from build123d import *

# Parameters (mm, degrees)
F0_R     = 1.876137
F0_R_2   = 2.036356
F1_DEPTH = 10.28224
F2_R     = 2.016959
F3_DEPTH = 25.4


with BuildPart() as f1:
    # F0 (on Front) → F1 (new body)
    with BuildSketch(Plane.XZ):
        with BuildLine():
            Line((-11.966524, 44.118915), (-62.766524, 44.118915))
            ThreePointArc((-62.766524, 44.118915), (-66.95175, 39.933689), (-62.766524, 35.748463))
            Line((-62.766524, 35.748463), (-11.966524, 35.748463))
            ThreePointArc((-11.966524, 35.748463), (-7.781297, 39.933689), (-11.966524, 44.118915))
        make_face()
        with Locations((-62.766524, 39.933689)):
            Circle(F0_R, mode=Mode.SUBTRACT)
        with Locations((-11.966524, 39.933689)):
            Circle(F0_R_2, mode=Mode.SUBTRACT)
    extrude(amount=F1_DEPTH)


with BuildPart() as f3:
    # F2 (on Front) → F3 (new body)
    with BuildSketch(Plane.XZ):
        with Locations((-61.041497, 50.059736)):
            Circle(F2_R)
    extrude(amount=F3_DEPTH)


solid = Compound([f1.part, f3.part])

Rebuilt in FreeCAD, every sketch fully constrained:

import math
import FreeCAD as App
import Part
import Sketcher
Q = App.Units.Quantity

doc = App.newDocument("Part")
body = doc.addObject("PartDesign::Body", "Body")

# Sketch on XZ plane
sketch1 = body.newObject("Sketcher::SketchObject", "Sketch")
sketch1.AttachmentSupport = (doc.getObject("XZ_Plane"), [""])
sketch1.MapMode = "FlatFace"
sketch1.addGeometry(Part.LineSegment(App.Vector(-11.966524, 44.118915, 0), App.Vector(-62.766524, 44.118915, 0)), False)
sketch1.addGeometry(Part.ArcOfCircle(Part.Circle(App.Vector(-62.766524, 39.933689, 0), App.Vector(0, 0, 1), 4.185226), math.radians(90), math.radians(270)), False)
sketch1.addGeometry(Part.LineSegment(App.Vector(-62.766524, 35.748463, 0), App.Vector(-11.966524, 35.748463, 0)), False)
sketch1.addGeometry(Part.ArcOfCircle(Part.Circle(App.Vector(-11.966523, 39.933689, 0), App.Vector(0, 0, 1), 4.185226), math.radians(-90.000014), math.radians(90.000014)), False)
sketch1.addGeometry(Part.Circle(App.Vector(-62.766524, 39.933689, 0), App.Vector(0, 0, 1), 1.876137), False)
sketch1.addGeometry(Part.Circle(App.Vector(-11.966524, 39.933689, 0), App.Vector(0, 0, 1), 2.036356), False)
sketch1.addConstraint(Sketcher.Constraint("Tangent", 0, 2, 1, 1))
sketch1.addConstraint(Sketcher.Constraint("Tangent", 1, 2, 2, 1))
sketch1.addConstraint(Sketcher.Constraint("Tangent", 2, 2, 3, 1))
sketch1.addConstraint(Sketcher.Constraint("Tangent", 3, 2, 0, 1))
sketch1.addConstraint(Sketcher.Constraint("Horizontal", 0))
sketch1.addConstraint(Sketcher.Constraint("Horizontal", 2))
sketch1.addConstraint(Sketcher.Constraint("Coincident", 4, 3, 1, 3))
sketch1.addConstraint(Sketcher.Constraint("Coincident", 5, 3, 3, 3))
sketch1.addConstraint(Sketcher.Constraint("DistanceX", 0, 2, 0, 1, Q("2 in")))
sketch1.addConstraint(Sketcher.Constraint("Diameter", 4, 3.752274))
sketch1.addConstraint(Sketcher.Constraint("Diameter", 5, 4.072712))
sketch1.addConstraint(Sketcher.Constraint("Radius", 1, 4.185226))
sketch1.addConstraint(Sketcher.Constraint("DistanceY", -1, 1, 1, 3, 39.933689))
sketch1.addConstraint(Sketcher.Constraint("DistanceX", 1, 3, -1, 1, 62.766524))
pad1 = body.newObject("PartDesign::Pad", "Pad")
pad1.Profile = sketch1
pad1.Length = 10.28224
body2 = doc.addObject("PartDesign::Body", "Body001")

# Sketch on XZ plane
sketch2 = body2.newObject("Sketcher::SketchObject", "Sketch001")
sketch2.AttachmentSupport = (doc.getObject("XZ_Plane001"), [""])
sketch2.MapMode = "FlatFace"
sketch2.addGeometry(Part.Circle(App.Vector(-61.041497, 50.059736, 0), App.Vector(0, 0, 1), 2.016959), False)
sketch2.addConstraint(Sketcher.Constraint("Diameter", 0, 4.033918))
sketch2.addConstraint(Sketcher.Constraint("DistanceX", 0, 3, -1, 1, 61.041497))
sketch2.addConstraint(Sketcher.Constraint("DistanceY", -1, 1, 0, 3, 50.059736))
pad2 = body2.newObject("PartDesign::Pad", "Pad001")
pad2.Profile = sketch2
pad2.Length = Q("1 in")

doc.recompute()
